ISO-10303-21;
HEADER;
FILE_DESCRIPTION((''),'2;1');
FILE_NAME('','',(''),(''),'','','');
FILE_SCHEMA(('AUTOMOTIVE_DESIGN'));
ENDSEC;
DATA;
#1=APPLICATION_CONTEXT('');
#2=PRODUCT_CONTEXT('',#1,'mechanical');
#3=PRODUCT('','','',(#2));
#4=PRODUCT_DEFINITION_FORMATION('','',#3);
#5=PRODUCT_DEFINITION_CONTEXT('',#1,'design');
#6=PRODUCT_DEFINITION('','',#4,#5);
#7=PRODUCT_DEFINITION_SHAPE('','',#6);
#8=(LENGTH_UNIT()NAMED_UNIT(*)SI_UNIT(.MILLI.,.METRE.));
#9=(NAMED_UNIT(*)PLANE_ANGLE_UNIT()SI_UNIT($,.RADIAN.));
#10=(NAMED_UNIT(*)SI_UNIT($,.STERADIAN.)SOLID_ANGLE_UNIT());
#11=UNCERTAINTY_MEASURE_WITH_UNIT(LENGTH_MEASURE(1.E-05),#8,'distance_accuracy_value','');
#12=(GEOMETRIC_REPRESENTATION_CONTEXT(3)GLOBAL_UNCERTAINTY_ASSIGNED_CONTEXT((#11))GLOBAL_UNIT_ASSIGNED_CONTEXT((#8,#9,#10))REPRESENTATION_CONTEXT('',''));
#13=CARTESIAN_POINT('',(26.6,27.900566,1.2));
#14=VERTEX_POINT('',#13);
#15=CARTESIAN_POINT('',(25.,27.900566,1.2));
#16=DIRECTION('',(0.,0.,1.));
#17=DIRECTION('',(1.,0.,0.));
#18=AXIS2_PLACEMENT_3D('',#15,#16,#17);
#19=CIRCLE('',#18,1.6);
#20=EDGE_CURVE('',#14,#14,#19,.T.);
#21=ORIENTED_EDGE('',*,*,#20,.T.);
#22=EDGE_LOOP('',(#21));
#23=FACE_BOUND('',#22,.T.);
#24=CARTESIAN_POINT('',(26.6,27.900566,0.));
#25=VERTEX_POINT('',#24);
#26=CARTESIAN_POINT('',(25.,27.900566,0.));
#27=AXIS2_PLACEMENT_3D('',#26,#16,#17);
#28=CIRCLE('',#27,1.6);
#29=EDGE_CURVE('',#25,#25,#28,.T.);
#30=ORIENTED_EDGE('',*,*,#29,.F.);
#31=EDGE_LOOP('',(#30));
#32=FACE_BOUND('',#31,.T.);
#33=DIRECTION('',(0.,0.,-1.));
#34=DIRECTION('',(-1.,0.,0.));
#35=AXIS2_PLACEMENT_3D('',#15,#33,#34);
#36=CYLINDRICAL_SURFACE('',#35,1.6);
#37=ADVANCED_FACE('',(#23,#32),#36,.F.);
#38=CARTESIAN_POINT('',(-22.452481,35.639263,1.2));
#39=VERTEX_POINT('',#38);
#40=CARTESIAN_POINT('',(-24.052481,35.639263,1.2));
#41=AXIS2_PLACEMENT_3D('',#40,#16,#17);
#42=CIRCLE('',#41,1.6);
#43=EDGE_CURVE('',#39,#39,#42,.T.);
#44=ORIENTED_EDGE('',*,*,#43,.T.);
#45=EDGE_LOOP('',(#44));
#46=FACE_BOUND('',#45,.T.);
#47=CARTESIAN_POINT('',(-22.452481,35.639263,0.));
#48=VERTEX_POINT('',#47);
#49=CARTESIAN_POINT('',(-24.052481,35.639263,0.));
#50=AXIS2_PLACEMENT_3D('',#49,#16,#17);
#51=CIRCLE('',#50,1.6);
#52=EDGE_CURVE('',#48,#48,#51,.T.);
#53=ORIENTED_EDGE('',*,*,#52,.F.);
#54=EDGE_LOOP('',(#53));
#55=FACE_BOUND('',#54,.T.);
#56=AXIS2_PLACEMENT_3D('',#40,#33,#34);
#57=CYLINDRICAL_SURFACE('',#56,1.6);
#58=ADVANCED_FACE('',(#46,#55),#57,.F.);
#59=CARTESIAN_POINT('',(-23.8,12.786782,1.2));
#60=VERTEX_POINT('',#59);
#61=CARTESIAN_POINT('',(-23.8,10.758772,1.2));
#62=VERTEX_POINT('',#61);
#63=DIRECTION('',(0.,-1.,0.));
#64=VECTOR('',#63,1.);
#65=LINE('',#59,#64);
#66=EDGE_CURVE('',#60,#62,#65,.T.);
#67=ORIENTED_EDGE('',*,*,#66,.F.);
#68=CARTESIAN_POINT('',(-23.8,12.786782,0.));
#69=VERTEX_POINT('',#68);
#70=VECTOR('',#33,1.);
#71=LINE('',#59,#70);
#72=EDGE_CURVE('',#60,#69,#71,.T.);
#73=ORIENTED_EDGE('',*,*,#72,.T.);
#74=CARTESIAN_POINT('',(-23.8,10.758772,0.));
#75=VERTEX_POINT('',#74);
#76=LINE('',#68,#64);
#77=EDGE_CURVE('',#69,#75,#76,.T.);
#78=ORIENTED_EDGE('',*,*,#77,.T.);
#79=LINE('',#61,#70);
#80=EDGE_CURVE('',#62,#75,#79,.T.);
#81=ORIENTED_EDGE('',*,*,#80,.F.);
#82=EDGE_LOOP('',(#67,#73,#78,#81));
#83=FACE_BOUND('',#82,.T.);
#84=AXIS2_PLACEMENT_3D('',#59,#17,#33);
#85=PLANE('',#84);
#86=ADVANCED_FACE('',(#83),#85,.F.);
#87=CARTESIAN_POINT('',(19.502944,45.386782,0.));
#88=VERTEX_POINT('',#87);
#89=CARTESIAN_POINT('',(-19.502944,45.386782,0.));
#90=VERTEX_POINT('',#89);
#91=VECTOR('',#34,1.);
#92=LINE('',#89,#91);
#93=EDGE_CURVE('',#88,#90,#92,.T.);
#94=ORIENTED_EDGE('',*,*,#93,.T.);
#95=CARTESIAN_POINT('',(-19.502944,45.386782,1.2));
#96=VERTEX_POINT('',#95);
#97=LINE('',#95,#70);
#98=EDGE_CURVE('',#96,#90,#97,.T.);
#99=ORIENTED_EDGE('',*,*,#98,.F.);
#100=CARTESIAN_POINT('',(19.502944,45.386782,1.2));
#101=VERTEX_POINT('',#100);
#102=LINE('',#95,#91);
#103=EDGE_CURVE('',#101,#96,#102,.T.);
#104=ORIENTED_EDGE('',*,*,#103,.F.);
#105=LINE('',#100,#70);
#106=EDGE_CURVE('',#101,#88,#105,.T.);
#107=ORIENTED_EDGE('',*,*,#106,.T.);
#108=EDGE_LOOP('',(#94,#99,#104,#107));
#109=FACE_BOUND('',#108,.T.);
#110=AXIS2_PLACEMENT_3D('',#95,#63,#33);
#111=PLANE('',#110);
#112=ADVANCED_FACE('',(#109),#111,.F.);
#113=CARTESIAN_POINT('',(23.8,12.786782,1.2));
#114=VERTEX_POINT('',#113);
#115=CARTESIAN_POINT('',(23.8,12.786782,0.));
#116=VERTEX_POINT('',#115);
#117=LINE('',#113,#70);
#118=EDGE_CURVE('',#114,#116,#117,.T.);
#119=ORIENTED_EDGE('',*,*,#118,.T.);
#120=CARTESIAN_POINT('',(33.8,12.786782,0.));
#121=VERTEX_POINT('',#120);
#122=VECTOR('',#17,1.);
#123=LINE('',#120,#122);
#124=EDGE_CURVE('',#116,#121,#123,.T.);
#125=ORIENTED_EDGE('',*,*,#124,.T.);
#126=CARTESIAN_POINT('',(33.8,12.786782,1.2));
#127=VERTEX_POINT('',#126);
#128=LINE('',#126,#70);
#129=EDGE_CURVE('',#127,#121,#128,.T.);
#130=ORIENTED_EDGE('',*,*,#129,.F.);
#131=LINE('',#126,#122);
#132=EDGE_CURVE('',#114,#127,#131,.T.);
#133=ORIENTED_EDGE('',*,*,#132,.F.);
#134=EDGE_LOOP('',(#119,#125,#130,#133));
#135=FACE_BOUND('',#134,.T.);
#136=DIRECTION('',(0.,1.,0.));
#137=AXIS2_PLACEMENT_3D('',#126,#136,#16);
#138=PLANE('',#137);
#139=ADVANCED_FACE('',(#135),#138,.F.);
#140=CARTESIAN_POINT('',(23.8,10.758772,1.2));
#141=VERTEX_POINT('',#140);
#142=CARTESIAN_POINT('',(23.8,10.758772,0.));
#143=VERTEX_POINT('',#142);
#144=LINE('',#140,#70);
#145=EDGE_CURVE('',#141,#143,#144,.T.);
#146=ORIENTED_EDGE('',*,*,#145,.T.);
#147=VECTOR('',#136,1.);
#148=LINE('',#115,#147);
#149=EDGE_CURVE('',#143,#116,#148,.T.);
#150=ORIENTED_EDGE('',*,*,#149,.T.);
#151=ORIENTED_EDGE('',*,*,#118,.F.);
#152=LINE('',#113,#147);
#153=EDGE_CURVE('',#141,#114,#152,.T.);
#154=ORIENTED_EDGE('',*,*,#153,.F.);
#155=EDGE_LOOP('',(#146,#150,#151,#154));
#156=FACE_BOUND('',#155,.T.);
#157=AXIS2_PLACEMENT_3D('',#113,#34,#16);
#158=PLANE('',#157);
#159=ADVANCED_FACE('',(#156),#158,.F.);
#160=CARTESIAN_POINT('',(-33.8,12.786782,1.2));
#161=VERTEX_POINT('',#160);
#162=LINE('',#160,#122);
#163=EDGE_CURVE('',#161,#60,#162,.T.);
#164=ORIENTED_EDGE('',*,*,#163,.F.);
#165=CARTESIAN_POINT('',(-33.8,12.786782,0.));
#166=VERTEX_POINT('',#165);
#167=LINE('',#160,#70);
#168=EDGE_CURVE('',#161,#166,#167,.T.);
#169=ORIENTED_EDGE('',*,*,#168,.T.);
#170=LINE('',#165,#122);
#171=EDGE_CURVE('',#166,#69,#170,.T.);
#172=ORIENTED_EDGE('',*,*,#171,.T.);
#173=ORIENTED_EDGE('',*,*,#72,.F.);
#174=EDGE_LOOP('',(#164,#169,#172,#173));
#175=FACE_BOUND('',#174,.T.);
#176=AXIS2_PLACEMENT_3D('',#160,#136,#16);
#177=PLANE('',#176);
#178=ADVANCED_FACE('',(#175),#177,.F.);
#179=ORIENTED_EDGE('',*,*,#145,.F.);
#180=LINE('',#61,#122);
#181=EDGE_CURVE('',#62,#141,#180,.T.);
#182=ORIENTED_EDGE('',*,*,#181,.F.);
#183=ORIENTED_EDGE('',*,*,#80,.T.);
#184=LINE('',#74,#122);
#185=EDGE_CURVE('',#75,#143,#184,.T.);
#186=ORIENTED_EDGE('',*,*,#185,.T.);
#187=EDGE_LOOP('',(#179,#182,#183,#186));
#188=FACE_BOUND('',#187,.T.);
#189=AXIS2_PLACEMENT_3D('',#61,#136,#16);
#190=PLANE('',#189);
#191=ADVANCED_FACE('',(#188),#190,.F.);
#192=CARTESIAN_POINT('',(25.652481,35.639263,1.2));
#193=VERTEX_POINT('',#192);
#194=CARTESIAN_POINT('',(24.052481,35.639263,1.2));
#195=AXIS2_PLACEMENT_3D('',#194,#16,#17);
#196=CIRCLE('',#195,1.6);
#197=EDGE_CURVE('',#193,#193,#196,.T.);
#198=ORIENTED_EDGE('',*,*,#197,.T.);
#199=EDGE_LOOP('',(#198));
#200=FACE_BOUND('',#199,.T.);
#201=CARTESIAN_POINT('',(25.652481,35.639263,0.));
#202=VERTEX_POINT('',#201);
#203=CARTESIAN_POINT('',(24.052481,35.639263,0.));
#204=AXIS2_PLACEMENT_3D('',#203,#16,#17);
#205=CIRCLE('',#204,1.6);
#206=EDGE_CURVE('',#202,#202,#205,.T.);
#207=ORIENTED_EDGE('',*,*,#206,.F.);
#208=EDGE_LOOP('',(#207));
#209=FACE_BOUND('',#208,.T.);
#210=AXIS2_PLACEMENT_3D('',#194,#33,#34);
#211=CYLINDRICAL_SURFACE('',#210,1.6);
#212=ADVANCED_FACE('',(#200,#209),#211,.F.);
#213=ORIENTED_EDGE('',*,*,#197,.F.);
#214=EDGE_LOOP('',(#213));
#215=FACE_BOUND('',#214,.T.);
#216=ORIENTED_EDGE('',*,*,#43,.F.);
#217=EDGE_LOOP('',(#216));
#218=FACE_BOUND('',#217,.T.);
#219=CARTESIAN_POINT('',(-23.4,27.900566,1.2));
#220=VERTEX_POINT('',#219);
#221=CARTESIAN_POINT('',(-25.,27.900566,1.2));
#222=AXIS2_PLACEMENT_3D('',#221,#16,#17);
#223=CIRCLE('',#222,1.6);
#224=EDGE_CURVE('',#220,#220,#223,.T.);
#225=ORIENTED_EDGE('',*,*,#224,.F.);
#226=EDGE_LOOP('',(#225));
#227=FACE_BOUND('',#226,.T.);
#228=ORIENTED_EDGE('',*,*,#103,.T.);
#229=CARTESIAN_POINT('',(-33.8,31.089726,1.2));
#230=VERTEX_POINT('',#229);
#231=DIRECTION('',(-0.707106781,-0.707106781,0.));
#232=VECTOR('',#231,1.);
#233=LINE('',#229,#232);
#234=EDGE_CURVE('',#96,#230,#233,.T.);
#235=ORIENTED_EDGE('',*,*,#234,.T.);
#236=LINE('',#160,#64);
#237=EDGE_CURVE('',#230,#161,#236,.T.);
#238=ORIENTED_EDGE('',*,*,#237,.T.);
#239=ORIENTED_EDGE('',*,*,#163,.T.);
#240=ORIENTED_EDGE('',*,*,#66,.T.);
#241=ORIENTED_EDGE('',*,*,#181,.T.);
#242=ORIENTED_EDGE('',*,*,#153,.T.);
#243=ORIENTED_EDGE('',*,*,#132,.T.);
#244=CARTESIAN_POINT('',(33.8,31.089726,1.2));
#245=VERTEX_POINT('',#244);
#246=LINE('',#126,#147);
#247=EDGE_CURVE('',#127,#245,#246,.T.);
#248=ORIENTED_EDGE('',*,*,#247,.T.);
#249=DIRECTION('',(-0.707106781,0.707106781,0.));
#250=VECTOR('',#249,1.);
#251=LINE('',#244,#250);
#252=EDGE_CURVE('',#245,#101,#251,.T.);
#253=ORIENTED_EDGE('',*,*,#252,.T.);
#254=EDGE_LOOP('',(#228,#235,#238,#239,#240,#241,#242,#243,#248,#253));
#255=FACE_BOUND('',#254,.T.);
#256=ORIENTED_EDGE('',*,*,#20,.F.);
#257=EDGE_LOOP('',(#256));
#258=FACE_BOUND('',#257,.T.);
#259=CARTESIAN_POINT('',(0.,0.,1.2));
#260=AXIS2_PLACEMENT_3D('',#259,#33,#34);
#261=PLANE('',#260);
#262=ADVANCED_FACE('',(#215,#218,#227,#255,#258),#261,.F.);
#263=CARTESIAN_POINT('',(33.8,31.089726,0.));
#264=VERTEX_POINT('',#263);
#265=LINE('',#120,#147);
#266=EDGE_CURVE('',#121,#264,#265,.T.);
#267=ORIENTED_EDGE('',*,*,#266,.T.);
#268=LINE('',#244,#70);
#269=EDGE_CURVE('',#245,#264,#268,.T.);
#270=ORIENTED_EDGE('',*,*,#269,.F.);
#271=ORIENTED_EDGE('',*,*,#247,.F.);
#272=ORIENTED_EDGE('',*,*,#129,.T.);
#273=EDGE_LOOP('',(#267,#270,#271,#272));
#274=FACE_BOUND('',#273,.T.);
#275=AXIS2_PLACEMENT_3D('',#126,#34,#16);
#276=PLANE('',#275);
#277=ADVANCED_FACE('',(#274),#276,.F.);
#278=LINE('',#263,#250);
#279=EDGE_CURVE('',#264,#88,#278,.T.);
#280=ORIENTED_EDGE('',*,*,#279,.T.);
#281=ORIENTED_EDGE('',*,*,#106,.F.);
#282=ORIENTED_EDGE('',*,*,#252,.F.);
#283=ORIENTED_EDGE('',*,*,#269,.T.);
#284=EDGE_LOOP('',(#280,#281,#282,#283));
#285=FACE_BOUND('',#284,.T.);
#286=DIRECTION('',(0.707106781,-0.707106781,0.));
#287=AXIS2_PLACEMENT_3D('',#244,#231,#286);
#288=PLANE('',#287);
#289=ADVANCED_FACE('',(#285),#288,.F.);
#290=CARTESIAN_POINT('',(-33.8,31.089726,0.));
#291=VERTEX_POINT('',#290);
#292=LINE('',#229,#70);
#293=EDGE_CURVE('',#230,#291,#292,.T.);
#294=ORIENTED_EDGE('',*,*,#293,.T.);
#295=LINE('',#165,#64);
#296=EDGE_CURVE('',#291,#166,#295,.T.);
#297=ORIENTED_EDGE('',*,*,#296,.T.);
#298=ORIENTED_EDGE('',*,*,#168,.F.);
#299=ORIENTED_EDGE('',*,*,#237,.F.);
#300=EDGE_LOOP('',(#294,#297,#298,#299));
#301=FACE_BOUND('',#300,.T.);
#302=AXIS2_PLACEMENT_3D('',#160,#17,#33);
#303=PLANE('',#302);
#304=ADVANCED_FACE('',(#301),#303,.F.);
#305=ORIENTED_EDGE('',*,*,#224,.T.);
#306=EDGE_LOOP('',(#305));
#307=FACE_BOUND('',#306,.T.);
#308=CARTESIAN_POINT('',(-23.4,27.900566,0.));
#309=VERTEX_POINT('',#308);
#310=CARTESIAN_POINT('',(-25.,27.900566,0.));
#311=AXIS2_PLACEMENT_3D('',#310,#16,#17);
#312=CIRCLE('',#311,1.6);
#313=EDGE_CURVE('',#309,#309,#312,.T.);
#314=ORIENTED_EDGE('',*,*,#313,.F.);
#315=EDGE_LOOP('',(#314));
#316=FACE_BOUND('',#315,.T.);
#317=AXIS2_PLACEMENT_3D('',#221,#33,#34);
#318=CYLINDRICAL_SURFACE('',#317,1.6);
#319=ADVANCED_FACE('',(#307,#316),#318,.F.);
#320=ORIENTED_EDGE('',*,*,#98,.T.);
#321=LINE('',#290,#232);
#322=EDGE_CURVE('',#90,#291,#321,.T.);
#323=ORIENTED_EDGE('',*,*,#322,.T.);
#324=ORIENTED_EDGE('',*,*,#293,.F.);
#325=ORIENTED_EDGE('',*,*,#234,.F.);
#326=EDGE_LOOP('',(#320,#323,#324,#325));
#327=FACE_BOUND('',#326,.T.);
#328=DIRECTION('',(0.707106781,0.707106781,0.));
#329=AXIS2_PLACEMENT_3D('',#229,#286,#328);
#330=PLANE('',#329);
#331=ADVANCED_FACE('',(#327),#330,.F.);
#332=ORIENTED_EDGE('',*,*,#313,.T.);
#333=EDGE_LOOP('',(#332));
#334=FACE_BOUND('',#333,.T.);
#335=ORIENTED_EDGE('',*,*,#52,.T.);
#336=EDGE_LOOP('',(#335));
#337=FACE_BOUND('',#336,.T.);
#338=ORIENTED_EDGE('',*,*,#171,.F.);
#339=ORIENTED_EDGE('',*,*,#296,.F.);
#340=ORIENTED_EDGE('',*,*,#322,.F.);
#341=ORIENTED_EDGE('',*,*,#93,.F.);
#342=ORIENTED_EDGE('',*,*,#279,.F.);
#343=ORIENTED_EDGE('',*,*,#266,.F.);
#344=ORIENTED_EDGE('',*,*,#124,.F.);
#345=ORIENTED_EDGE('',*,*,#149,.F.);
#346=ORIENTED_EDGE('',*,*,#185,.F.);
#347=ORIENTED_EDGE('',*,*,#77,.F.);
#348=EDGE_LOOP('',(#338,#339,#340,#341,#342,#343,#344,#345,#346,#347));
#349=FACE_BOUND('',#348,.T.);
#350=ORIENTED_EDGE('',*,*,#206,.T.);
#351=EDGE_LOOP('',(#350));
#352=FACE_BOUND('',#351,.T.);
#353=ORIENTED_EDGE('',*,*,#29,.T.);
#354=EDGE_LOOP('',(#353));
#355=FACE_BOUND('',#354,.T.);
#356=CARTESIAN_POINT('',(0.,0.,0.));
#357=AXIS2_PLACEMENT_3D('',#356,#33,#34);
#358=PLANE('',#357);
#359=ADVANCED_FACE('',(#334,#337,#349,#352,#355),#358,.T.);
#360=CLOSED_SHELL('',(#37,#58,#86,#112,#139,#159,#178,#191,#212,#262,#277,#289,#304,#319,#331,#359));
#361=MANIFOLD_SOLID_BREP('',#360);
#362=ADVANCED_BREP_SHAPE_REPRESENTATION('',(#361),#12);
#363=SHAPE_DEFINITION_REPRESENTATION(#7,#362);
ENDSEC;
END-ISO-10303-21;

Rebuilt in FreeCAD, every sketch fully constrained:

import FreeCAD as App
import Part
import Sketcher


def add_polygon(sketch, points):
    """Adds a closed chain of lines whose ends are joined by coincident constraints."""
    first, n = sketch.GeometryCount, len(points)
    for a, b in zip(points, points[1:] + points[:1]):
        sketch.addGeometry(Part.LineSegment(App.Vector(*a, 0), App.Vector(*b, 0)), False)
    for i in range(n):
        sketch.addConstraint(Sketcher.Constraint("Coincident", first + i, 2, first + (i + 1) % n, 1))

doc = App.newDocument("Part")
body = doc.addObject("PartDesign::Body", "Body")

# Sketch on XY plane
sketch1 = body.newObject("Sketcher::SketchObject", "Sketch")
sketch1.AttachmentSupport = (doc.getObject("XY_Plane"), [""])
sketch1.MapMode = "FlatFace"
add_polygon(sketch1, [(-33.8, 31.1), (-33.8, 12.8), (-23.8, 12.8), (-23.8, 10.8), (23.8, 10.8), (23.8, 12.8), (33.8, 12.8), (33.8, 31.1), (19.5, 45.4), (-19.5, 45.4)])  # lines 0-9
sketch1.addGeometry(Part.Circle(App.Vector(25, 27.9, 0), App.Vector(0, 0, 1), 1.6), False)  # 10
sketch1.addGeometry(Part.Circle(App.Vector(-25, 27.9, 0), App.Vector(0, 0, 1), 1.6), False)  # 11
sketch1.addGeometry(Part.Circle(App.Vector(24.1, 35.6, 0), App.Vector(0, 0, 1), 1.6), False)  # 12
sketch1.addGeometry(Part.Circle(App.Vector(-24.1, 35.6, 0), App.Vector(0, 0, 1), 1.6), False)  # 13
sketch1.addConstraint(Sketcher.Constraint("Vertical", 0))
sketch1.addConstraint(Sketcher.Constraint("Horizontal", 1))
sketch1.addConstraint(Sketcher.Constraint("Vertical", 2))
sketch1.addConstraint(Sketcher.Constraint("Horizontal", 3))
sketch1.addConstraint(Sketcher.Constraint("Vertical", 4))
sketch1.addConstraint(Sketcher.Constraint("Horizontal", 5))
sketch1.addConstraint(Sketcher.Constraint("Vertical", 6))
sketch1.addConstraint(Sketcher.Constraint("Horizontal", 8))
sketch1.addConstraint(Sketcher.Constraint("Equal", 10, 11))
sketch1.addConstraint(Sketcher.Constraint("Equal", 11, 12))
sketch1.addConstraint(Sketcher.Constraint("Equal", 12, 13))
sketch1.addConstraint(Sketcher.Constraint("Symmetric", 10, 3, 11, 3, -2))
sketch1.addConstraint(Sketcher.Constraint("Symmetric", 12, 3, 13, 3, -2))
sketch1.addConstraint(Sketcher.Constraint("Symmetric", 1, 2, 4, 2, -2))
sketch1.addConstraint(Sketcher.Constraint("Symmetric", 6, 2, 9, 2, -2))
sketch1.addConstraint(Sketcher.Constraint("Perpendicular", 7, 9))
sketch1.addConstraint(Sketcher.Constraint("Equal", 7, 9))
sketch1.addConstraint(Sketcher.Constraint("Diameter", 10, 3.2))
sketch1.addConstraint(Sketcher.Constraint("DistanceX", 1, 1, 1, 2, 10.0))
sketch1.addConstraint(Sketcher.Constraint("DistanceX", 3, 1, 3, 2, 47.6))
sketch1.addConstraint(Sketcher.Constraint("DistanceX", -1, 1, 10, 3, 25.0))
sketch1.addConstraint(Sketcher.Constraint("DistanceY", 4, 2, 7, 2, 32.6))
sketch1.addConstraint(Sketcher.Constraint("DistanceY", 2, 2, 2, 1, 2.02801))
sketch1.addConstraint(Sketcher.Constraint("Distance", 7, 20.219091))
sketch1.addConstraint(Sketcher.Constraint("DistanceX", -1, 1, 12, 3, 24.052481))
sketch1.addConstraint(Sketcher.Constraint("DistanceY", 0, 2, 13, 3, 22.852481))
sketch1.addConstraint(Sketcher.Constraint("DistanceY", 10, 3, 6, 2, 3.189159))
sketch1.addConstraint(Sketcher.Constraint("DistanceY", -1, 1, 10, 3, 27.900566))
pad1 = body.newObject("PartDesign::Pad", "Pad")
pad1.Profile = sketch1
pad1.Length = 1.2

doc.recompute()
